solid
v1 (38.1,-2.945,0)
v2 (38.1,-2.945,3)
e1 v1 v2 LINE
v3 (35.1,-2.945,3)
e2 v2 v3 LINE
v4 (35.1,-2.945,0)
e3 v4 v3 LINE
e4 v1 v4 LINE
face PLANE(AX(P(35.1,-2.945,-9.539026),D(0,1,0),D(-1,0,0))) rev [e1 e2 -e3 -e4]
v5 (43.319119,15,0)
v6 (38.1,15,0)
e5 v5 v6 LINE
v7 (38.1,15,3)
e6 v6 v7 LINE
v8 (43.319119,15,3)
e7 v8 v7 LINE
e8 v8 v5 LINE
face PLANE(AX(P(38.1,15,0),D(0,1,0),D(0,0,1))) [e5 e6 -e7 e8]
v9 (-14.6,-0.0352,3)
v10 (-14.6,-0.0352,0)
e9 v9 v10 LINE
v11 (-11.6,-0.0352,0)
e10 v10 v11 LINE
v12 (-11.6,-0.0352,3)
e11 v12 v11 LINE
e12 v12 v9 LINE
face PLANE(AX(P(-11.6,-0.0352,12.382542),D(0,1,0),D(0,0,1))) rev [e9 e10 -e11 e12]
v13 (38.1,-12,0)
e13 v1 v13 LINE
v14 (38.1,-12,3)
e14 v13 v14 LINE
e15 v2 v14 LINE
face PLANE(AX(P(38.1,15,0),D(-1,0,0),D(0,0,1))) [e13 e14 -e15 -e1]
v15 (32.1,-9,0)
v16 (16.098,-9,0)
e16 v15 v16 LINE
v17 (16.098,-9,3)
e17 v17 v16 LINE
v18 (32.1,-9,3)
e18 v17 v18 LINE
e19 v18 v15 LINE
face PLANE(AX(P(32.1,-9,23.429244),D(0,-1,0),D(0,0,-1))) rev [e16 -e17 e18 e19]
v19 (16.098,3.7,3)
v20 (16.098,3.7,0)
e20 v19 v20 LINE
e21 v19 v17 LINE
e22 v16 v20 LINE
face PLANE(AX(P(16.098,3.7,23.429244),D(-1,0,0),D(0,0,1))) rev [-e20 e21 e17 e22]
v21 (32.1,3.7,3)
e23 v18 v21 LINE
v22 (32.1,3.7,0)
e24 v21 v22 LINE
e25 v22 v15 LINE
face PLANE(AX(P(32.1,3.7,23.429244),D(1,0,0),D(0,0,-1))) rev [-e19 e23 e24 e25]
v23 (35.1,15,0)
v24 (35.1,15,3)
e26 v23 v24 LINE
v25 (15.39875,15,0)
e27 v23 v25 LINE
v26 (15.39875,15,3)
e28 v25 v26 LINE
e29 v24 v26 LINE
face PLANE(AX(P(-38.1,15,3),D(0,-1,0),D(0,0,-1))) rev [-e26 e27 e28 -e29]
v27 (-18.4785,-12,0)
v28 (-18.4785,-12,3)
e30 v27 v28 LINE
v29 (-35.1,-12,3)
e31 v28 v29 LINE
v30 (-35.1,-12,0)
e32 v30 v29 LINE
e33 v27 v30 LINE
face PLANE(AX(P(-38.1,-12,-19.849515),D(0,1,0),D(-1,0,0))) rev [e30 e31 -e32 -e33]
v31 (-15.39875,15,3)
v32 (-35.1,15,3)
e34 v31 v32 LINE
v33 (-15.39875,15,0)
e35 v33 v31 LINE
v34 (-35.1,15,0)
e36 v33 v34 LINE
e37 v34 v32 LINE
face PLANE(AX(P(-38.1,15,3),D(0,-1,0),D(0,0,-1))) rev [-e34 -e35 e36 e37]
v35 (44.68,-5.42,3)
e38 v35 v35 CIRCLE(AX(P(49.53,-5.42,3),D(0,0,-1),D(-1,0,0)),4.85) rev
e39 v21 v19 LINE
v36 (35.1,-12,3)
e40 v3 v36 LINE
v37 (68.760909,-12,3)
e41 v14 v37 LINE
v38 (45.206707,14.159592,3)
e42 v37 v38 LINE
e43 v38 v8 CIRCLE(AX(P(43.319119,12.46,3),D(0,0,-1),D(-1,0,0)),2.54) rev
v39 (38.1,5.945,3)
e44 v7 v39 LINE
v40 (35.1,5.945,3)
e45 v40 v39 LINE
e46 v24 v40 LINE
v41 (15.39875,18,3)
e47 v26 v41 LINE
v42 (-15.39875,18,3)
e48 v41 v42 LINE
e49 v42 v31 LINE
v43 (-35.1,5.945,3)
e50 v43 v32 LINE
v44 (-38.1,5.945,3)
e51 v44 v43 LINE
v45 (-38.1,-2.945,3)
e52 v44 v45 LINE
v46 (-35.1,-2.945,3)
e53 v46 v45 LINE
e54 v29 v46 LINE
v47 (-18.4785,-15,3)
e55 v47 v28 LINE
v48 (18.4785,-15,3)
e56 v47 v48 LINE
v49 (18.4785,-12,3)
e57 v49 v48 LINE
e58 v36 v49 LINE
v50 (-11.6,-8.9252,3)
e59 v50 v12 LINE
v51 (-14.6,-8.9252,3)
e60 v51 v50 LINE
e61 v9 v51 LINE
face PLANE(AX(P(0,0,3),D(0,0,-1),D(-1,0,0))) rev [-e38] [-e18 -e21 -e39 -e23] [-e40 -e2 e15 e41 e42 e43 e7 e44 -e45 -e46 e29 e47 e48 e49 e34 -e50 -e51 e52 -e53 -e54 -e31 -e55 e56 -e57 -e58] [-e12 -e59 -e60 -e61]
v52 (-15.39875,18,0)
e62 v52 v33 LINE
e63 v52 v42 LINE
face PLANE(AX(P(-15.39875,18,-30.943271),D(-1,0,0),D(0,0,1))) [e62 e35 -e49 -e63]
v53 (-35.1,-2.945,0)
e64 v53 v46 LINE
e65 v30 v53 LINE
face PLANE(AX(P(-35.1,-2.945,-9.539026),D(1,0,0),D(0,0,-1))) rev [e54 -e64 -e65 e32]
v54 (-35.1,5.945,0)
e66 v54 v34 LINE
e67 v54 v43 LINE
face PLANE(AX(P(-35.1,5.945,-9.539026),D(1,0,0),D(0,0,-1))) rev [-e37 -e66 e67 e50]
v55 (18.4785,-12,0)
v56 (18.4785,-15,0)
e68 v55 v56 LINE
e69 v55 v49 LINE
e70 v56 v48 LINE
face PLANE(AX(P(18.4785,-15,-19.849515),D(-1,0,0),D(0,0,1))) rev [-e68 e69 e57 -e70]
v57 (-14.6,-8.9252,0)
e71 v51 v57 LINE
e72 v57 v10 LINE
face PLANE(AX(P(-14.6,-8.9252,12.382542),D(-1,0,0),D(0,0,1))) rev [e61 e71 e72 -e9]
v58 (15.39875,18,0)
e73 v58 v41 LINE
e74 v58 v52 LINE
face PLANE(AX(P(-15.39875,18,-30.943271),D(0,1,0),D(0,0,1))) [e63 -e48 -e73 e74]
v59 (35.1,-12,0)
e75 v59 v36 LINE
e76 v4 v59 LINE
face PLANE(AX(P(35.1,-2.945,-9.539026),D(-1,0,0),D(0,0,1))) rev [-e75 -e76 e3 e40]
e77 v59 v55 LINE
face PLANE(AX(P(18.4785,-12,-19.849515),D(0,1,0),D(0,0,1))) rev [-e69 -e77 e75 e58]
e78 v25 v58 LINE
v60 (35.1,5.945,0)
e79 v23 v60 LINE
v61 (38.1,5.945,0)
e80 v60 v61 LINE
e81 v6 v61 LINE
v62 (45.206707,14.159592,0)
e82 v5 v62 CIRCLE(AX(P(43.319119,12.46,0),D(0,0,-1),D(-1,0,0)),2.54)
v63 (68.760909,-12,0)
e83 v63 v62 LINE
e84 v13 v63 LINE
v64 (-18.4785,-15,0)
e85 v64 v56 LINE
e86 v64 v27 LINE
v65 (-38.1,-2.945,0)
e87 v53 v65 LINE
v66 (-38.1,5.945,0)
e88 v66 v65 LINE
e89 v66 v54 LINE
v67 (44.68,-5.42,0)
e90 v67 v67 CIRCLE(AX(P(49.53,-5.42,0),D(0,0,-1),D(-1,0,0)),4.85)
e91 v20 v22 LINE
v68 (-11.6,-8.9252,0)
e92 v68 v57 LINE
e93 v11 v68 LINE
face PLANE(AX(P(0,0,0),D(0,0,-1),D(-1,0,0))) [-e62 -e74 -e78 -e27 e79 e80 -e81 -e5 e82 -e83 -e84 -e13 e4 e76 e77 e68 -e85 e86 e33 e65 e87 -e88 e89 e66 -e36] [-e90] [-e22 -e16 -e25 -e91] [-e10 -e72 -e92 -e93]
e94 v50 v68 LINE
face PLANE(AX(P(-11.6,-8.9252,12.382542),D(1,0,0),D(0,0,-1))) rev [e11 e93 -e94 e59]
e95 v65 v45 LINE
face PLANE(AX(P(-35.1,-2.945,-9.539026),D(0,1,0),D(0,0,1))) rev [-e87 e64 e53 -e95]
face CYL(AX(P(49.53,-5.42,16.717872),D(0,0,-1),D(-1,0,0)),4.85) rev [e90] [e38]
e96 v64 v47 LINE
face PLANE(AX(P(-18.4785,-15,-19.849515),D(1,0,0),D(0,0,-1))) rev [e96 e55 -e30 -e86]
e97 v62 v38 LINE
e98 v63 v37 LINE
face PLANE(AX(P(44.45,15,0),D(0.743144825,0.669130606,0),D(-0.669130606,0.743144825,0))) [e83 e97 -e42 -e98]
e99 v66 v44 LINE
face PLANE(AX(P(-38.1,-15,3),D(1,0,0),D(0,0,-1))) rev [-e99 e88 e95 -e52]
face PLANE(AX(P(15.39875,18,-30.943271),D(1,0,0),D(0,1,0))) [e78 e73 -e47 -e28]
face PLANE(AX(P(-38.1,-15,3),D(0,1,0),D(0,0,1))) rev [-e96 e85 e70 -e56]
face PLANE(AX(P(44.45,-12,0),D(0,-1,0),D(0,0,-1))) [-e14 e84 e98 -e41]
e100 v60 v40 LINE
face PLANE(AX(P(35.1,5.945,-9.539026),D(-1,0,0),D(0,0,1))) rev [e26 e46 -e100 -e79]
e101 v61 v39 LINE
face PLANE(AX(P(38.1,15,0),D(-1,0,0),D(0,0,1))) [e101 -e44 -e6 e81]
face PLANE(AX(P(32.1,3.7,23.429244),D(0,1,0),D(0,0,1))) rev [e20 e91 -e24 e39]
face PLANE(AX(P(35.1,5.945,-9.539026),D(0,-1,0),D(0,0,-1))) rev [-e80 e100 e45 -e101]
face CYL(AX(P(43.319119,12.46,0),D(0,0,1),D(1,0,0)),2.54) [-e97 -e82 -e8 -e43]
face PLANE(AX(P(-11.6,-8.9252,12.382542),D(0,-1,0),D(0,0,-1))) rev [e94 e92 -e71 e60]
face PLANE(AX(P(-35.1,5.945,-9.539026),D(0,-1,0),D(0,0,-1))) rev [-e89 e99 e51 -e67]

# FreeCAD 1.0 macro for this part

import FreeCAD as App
import Part
import Sketcher
Q = App.Units.Quantity


def edges_at(feature, points):
    """Names of the edges that pass closest to the given points."""
    edges = feature.Shape.Edges
    near = lambda p: min(range(len(edges)), key=lambda i: edges[i].distToShape(Part.Vertex(*p))[0])
    return sorted({f"Edge{near(p) + 1}" for p in points})


def add_polygon(sketch, points):
    """Adds a closed chain of lines whose ends are joined by coincident constraints."""
    first, n = sketch.GeometryCount, len(points)
    for a, b in zip(points, points[1:] + points[:1]):
        sketch.addGeometry(Part.LineSegment(App.Vector(*a, 0), App.Vector(*b, 0)), False)
    for i in range(n):
        sketch.addConstraint(Sketcher.Constraint("Coincident", first + i, 2, first + (i + 1) % n, 1))

doc = App.newDocument("Part")
body = doc.addObject("PartDesign::Body", "Body")

# Sketch on XY plane
sketch1 = doc.addObject("Sketcher::SketchObject", "Sketch")
body.addObject(sketch1)
sketch1.AttachmentSupport = (doc.XY_Plane, [""])
sketch1.MapMode = "FlatFace"
add_polygon(sketch1, [(-38.1, 15), (-38.1, -15), (38.1, -15), (38.1, 15)])  # lines 0-3
sketch1.addConstraint([
    Sketcher.Constraint("Vertical", 0),
    Sketcher.Constraint("Horizontal", 1),
    Sketcher.Constraint("Vertical", 2),
    Sketcher.Constraint("Horizontal", 3),
    Sketcher.Constraint("Symmetric", 0, 2, 2, 2, -1, 1),
    Sketcher.Constraint("DistanceX", 1, 1, 1, 2, Q("3 in")),
    Sketcher.Constraint("DistanceY", 0, 2, 0, 1, Q("30 mm")),
])
pad1 = doc.addObject("PartDesign::Pad", "Pad")
body.addObject(pad1)
pad1.Profile = sketch1
pad1.Length = 3

# Sketch on XY plane
sketch2 = doc.addObject("Sketcher::SketchObject", "Sketch001")
body.addObject(sketch2)
sketch2.AttachmentSupport = (doc.XY_Plane, [""])
sketch2.MapMode = "FlatFace"
sketch2.AttachmentOffset = App.Placement(App.Vector(0, 0, 3), App.Rotation())
add_polygon(sketch2, [(-38.1, -12), (-38.1, -15), (-18.4785, -15), (-18.4785, -12)])  # lines 0-3
add_polygon(sketch2, [(18.4785, -12), (18.4785, -15), (38.1, -15), (38.1, -12)])  # lines 4-7
sketch2.addConstraint([
    Sketcher.Constraint("Vertical", 0),
    Sketcher.Constraint("Horizontal", 1),
    Sketcher.Constraint("Vertical", 2),
    Sketcher.Constraint("Horizontal", 3),
    Sketcher.Constraint("Vertical", 4),
    Sketcher.Constraint("Horizontal", 5),
    Sketcher.Constraint("Vertical", 6),
    Sketcher.Constraint("Horizontal", 7),
    Sketcher.Constraint("Symmetric", 1, 2, 4, 2, -2),
    Sketcher.Constraint("Symmetric", 3, 2, 6, 2, -2),
    Sketcher.Constraint("DistanceX", 0, 2, 5, 2, Q("3 in")),
    Sketcher.Constraint("DistanceX", 1, 1, 1, 2, Q("0.7725 in")),
    Sketcher.Constraint("DistanceY", 0, 2, 0, 1, Q("3 mm")),
    Sketcher.Constraint("DistanceY", 0, 2, -1, 1, Q("15 mm")),
])
pocket1 = doc.addObject("PartDesign::Pocket", "Pocket")
body.addObject(pocket1)
pocket1.Profile = sketch2
pocket1.Length = 3

# Sketch on XY plane
sketch3 = doc.addObject("Sketcher::SketchObject", "Sketch002")
body.addObject(sketch3)
sketch3.AttachmentSupport = (doc.XY_Plane, [""])
sketch3.MapMode = "FlatFace"
sketch3.AttachmentOffset = App.Placement(App.Vector(0, 0, 3), App.Rotation())
add_polygon(sketch3, [(-38.1, 15), (-38.1, 5.945), (-35.1, 5.945), (-35.1, 15)])  # lines 0-3
add_polygon(sketch3, [(-38.1, -2.945), (-38.1, -12), (-35.1, -12), (-35.1, -2.945)])  # lines 4-7
add_polygon(sketch3, [(35.1, 15), (35.1, 5.945), (38.1, 5.945), (38.1, 15)])  # lines 8-11
add_polygon(sketch3, [(35.1, -2.945), (35.1, -12), (38.1, -12), (38.1, -2.945)])  # lines 12-15
sketch3.addConstraint([
    Sketcher.Constraint("Vertical", 0),
    Sketcher.Constraint("Horizontal", 1),
    Sketcher.Constraint("Vertical", 2),
    Sketcher.Constraint("Horizontal", 3),
    Sketcher.Constraint("Vertical", 4),
    Sketcher.Constraint("Horizontal", 5),
    Sketcher.Constraint("Vertical", 6),
    Sketcher.Constraint("Horizontal", 7),
    Sketcher.Constraint("Vertical", 8),
    Sketcher.Constraint("Horizontal", 9),
    Sketcher.Constraint("Vertical", 10),
    Sketcher.Constraint("Horizontal", 11),
    Sketcher.Constraint("Vertical", 12),
    Sketcher.Constraint("Horizontal", 13),
    Sketcher.Constraint("Vertical", 14),
    Sketcher.Constraint("Horizontal", 15),
    Sketcher.Constraint("Symmetric", 1, 2, 8, 2, -2),
    Sketcher.Constraint("Symmetric", 3, 2, 10, 2, -2),
    Sketcher.Constraint("Symmetric", 5, 2, 12, 2, -2),
    Sketcher.Constraint("Symmetric", 7, 2, 14, 2, -2),
    Sketcher.Constraint("Vertical", 3, 2, 4, 2),
    Sketcher.Constraint("Vertical", 2, 2, 5, 2),
    Sketcher.Constraint("Equal", 2, 4),
    Sketcher.Constraint("DistanceX", 0, 2, -1, 1, Q("1.5 in")),
    Sketcher.Constraint("DistanceY", 6, 2, 1, 2, Q("0.35 in")),
    Sketcher.Constraint("DistanceX", 1, 1, 1, 2, Q("3 mm")),
    Sketcher.Constraint("DistanceY", 0, 2, 0, 1, Q("9.055 mm")),
    Sketcher.Constraint("DistanceY", -1, 1, 0, 2, Q("5.945 mm")),
])
pocket2 = doc.addObject("PartDesign::Pocket", "Pocket001")
body.addObject(pocket2)
pocket2.Profile = sketch3
pocket2.Length = 3

# Sketch on XY plane
sketch4 = doc.addObject("Sketcher::SketchObject", "Sketch003")
body.addObject(sketch4)
sketch4.AttachmentSupport = (doc.XY_Plane, [""])
sketch4.MapMode = "FlatFace"
sketch4.AttachmentOffset = App.Placement(App.Vector(0, 0, 3), App.Rotation())
add_polygon(sketch4, [(68.760909, -12), (44.45, 15), (38.1, 15), (38.1, -12)])  # lines 0-3
sketch4.addConstraint([
    Sketcher.Constraint("Horizontal", 1),
    Sketcher.Constraint("Vertical", 2),
    Sketcher.Constraint("Horizontal", 3),
    Sketcher.Constraint("Angle", 0, Q("132 deg")),
    Sketcher.Constraint("DistanceX", 1, 2, 1, 1, Q("0.25 in")),
    Sketcher.Constraint("DistanceX", -1, 1, 1, 2, Q("1.5 in")),
    Sketcher.Constraint("DistanceY", 2, 2, 2, 1, Q("27 mm")),
    Sketcher.Constraint("DistanceY", -1, 1, 0, 2, Q("15 mm")),
])
pad2 = doc.addObject("PartDesign::Pad", "Pad001")
body.addObject(pad2)
pad2.Profile = sketch4
pad2.Length = 3
pad2.Reversed = True

# Sketch on XY plane
sketch5 = doc.addObject("Sketcher::SketchObject", "Sketch004")
body.addObject(sketch5)
sketch5.AttachmentSupport = (doc.XY_Plane, [""])
sketch5.MapMode = "FlatFace"
sketch5.AttachmentOffset = App.Placement(App.Vector(0, 0, 3), App.Rotation())
add_polygon(sketch5, [(-15.39875, 18), (-15.39875, 15), (15.39875, 15), (15.39875, 18)])  # lines 0-3
sketch5.addConstraint([
    Sketcher.Constraint("Vertical", 0),
    Sketcher.Constraint("Horizontal", 1),
    Sketcher.Constraint("Vertical", 2),
    Sketcher.Constraint("Horizontal", 3),
    Sketcher.Constraint("DistanceX", 1, 1, 1, 2, Q("1.2125 in")),
    Sketcher.Constraint("DistanceY", 0, 2, 0, 1, Q("3 mm")),
    Sketcher.Constraint("DistanceY", -1, 1, 0, 2, Q("15 mm")),
    Sketcher.Constraint("DistanceX", 0, 2, -1, 1, Q("15.39875 mm")),
])
pad3 = doc.addObject("PartDesign::Pad", "Pad002")
body.addObject(pad3)
pad3.Profile = sketch5
pad3.Length = 3
pad3.Reversed = True

# Sketch on XY plane
sketch6 = doc.addObject("Sketcher::SketchObject", "Sketch005")
body.addObject(sketch6)
sketch6.AttachmentSupport = (doc.XY_Plane, [""])
sketch6.MapMode = "FlatFace"
add_polygon(sketch6, [(32.1, 3.7), (32.1, -9), (16.098, -9), (16.098, 3.7)])  # lines 0-3
sketch6.addConstraint([
    Sketcher.Constraint("Vertical", 0),
    Sketcher.Constraint("Horizontal", 1),
    Sketcher.Constraint("Vertical", 2),
    Sketcher.Constraint("Horizontal", 3),
    Sketcher.Constraint("DistanceY", 0, 2, 0, 1, Q("0.5 in")),
    Sketcher.Constraint("DistanceX", 1, 2, 1, 1, Q("0.63 in")),
    Sketcher.Constraint("DistanceX", -1, 1, 0, 2, Q("32.1 mm")),
    Sketcher.Constraint("DistanceY", 0, 2, -1, 1, Q("9 mm")),
])
pocket3 = doc.addObject("PartDesign::Pocket", "Pocket002")
body.addObject(pocket3)
pocket3.Profile = sketch6
pocket3.Length = 3
pocket3.Reversed = True

# Sketch on XY plane
sketch7 = doc.addObject("Sketcher::SketchObject", "Sketch006")
body.addObject(sketch7)
sketch7.AttachmentSupport = (doc.XY_Plane, [""])
sketch7.MapMode = "FlatFace"
sketch7.addGeometry(Part.Circle(App.Vector(49.53, -5.42, 0), App.Vector(0, 0, 1), 4.85), False)
sketch7.addConstraint([
    Sketcher.Constraint("Diameter", 0, Q("9.7 mm")),
    Sketcher.Constraint("DistanceX", -1, 1, 0, 3, Q("1.95 in")),
    Sketcher.Constraint("DistanceY", 0, 3, -1, 1, Q("5.42 mm")),
])
pocket4 = doc.addObject("PartDesign::Pocket", "Pocket003")
body.addObject(pocket4)
pocket4.Profile = sketch7
pocket4.Length = 3
pocket4.Reversed = True
doc.recompute()

fillet = doc.addObject("PartDesign::Fillet", "Fillet")
body.addObject(fillet)
fillet.Base = (pocket4, edges_at(pocket4, [(44.45, 15, 1.5)]))
fillet.Radius = Q("0.1 in")

# Sketch on XY plane
sketch8 = doc.addObject("Sketcher::SketchObject", "Sketch007")
body.addObject(sketch8)
sketch8.AttachmentSupport = (doc.XY_Plane, [""])
sketch8.MapMode = "FlatFace"
add_polygon(sketch8, [(-11.6, -0.0352), (-11.6, -8.9252), (-14.6, -8.9252), (-14.6, -0.0352)])  # lines 0-3
sketch8.addConstraint([
    Sketcher.Constraint("Vertical", 0),
    Sketcher.Constraint("Horizontal", 1),
    Sketcher.Constraint("Vertical", 2),
    Sketcher.Constraint("Horizontal", 3),
    Sketcher.Constraint("DistanceY", 0, 2, 0, 1, Q("0.35 in")),
    Sketcher.Constraint("DistanceX", 1, 2, 1, 1, Q("3 mm")),
    Sketcher.Constraint("DistanceX", 0, 2, -1, 1, Q("11.6 mm")),
    Sketcher.Constraint("DistanceY", 0, 2, -1, 1, Q("8.9252 mm")),
])
pocket5 = doc.addObject("PartDesign::Pocket", "Pocket004")
body.addObject(pocket5)
pocket5.Profile = sketch8
pocket5.Length = 3
pocket5.Reversed = True

doc.recompute()
